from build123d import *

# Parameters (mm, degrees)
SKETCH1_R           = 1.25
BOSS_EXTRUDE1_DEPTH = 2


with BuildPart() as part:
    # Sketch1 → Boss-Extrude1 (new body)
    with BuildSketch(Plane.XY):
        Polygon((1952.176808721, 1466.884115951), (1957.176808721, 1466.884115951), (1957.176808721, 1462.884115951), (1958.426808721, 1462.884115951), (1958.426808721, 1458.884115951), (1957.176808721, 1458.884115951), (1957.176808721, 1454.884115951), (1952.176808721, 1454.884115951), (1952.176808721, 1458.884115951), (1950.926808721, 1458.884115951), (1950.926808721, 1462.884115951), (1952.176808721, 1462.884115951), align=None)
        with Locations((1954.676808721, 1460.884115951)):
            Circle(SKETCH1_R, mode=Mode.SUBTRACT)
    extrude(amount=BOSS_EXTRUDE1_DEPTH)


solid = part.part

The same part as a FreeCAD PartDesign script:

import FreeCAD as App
import Part
import Sketcher
from FreeCAD import Vector
Q = App.Units.Quantity

doc = App.newDocument("Part")
body = doc.addObject("PartDesign::Body", "Body")

# Sketch on XY plane
sketch1 = doc.addObject("Sketcher::SketchObject", "Sketch")
body.addObject(sketch1)
sketch1.AttachmentSupport = (doc.XY_Plane, [""])
sketch1.MapMode = "FlatFace"
sketch1.addGeometry(Part.LineSegment(Vector(1957.2, 1466.9, 0), Vector(1952.2, 1466.9, 0)), False)
sketch1.addGeometry(Part.LineSegment(Vector(1952.2, 1466.9, 0), Vector(1952.2, 1462.9, 0)), False)
sketch1.addGeometry(Part.LineSegment(Vector(1952.2, 1462.9, 0), Vector(1950.9, 1462.9, 0)), False)
sketch1.addGeometry(Part.LineSegment(Vector(1950.9, 1462.9, 0), Vector(1950.9, 1458.9, 0)), False)
sketch1.addGeometry(Part.LineSegment(Vector(1950.9, 1458.9, 0), Vector(1952.2, 1458.9, 0)), False)
sketch1.addGeometry(Part.LineSegment(Vector(1952.2, 1458.9, 0), Vector(1952.2, 1454.9, 0)), False)
sketch1.addGeometry(Part.LineSegment(Vector(1952.2, 1454.9, 0), Vector(1957.2, 1454.9, 0)), False)
sketch1.addGeometry(Part.LineSegment(Vector(1957.2, 1454.9, 0), Vector(1957.2, 1458.9, 0)), False)
sketch1.addGeometry(Part.LineSegment(Vector(1957.2, 1458.9, 0), Vector(1958.4, 1458.9, 0)), False)
sketch1.addGeometry(Part.LineSegment(Vector(1958.4, 1458.9, 0), Vector(1958.4, 1462.9, 0)), False)
sketch1.addGeometry(Part.LineSegment(Vector(1958.4, 1462.9, 0), Vector(1957.2, 1462.9, 0)), False)
sketch1.addGeometry(Part.LineSegment(Vector(1957.2, 1462.9, 0), Vector(1957.2, 1466.9, 0)), False)
sketch1.addGeometry(Part.Circle(Vector(1954.7, 1460.9, 0), Vector(0, 0, 1), 1.2), False)
sketch1.addConstraint(Sketcher.Constraint("Coincident", 0, 2, 1, 1))
sketch1.addConstraint(Sketcher.Constraint("Coincident", 1, 2, 2, 1))
sketch1.addConstraint(Sketcher.Constraint("Coincident", 2, 2, 3, 1))
sketch1.addConstraint(Sketcher.Constraint("Coincident", 3, 2, 4, 1))
sketch1.addConstraint(Sketcher.Constraint("Coincident", 4, 2, 5, 1))
sketch1.addConstraint(Sketcher.Constraint("Coincident", 5, 2, 6, 1))
sketch1.addConstraint(Sketcher.Constraint("Coincident", 6, 2, 7, 1))
sketch1.addConstraint(Sketcher.Constraint("Coincident", 7, 2, 8, 1))
sketch1.addConstraint(Sketcher.Constraint("Coincident", 8, 2, 9, 1))
sketch1.addConstraint(Sketcher.Constraint("Coincident", 9, 2, 10, 1))
sketch1.addConstraint(Sketcher.Constraint("Coincident", 10, 2, 11, 1))
sketch1.addConstraint(Sketcher.Constraint("Coincident", 11, 2, 0, 1))
sketch1.addConstraint(Sketcher.Constraint("Horizontal", 0))
sketch1.addConstraint(Sketcher.Constraint("Vertical", 1))
sketch1.addConstraint(Sketcher.Constraint("Horizontal", 2))
sketch1.addConstraint(Sketcher.Constraint("Vertical", 3))
sketch1.addConstraint(Sketcher.Constraint("Horizontal", 4))
sketch1.addConstraint(Sketcher.Constraint("Vertical", 5))
sketch1.addConstraint(Sketcher.Constraint("Horizontal", 6))
sketch1.addConstraint(Sketcher.Constraint("Vertical", 7))
sketch1.addConstraint(Sketcher.Constraint("Horizontal", 8))
sketch1.addConstraint(Sketcher.Constraint("Vertical", 9))
sketch1.addConstraint(Sketcher.Constraint("Horizontal", 10))
sketch1.addConstraint(Sketcher.Constraint("Vertical", 11))
sketch1.addConstraint(Sketcher.Constraint("Horizontal", 4, 2, 7, 2))
sketch1.addConstraint(Sketcher.Constraint("Horizontal", 2, 2, 9, 2))
sketch1.addConstraint(Sketcher.Constraint("Vertical", 1, 2, 4, 2))
sketch1.addConstraint(Sketcher.Constraint("Vertical", 7, 2, 10, 2))
sketch1.addConstraint(Sketcher.Constraint("Equal", 4, 8))
sketch1.addConstraint(Sketcher.Constraint("Equal", 1, 3))
sketch1.addConstraint(Sketcher.Constraint("Equal", 3, 5))
sketch1.addConstraint(Sketcher.Constraint("Diameter", 12, Q("2.5 mm")))
sketch1.addConstraint(Sketcher.Constraint("DistanceX", 0, 2, 0, 1, Q("5 mm")))
sketch1.addConstraint(Sketcher.Constraint("DistanceY", 1, 2, 1, 1, Q("4 mm")))
sketch1.addConstraint(Sketcher.Constraint("DistanceY", 12, 3, 0, 2, Q("6 mm")))
sketch1.addConstraint(Sketcher.Constraint("DistanceX", 2, 2, 2, 1, Q("1.25 mm")))
sketch1.addConstraint(Sketcher.Constraint("DistanceX", 0, 2, 12, 3, Q("2.5 mm")))
sketch1.addConstraint(Sketcher.Constraint("DistanceX", -1, 1, 12, 3, Q("1954.676809 mm")))
sketch1.addConstraint(Sketcher.Constraint("DistanceY", -1, 1, 12, 3, Q("1460.884116 mm")))
pad1 = doc.addObject("PartDesign::Pad", "Pad")
body.addObject(pad1)
pad1.Profile = sketch1
pad1.Length = 2

doc.recompute()
